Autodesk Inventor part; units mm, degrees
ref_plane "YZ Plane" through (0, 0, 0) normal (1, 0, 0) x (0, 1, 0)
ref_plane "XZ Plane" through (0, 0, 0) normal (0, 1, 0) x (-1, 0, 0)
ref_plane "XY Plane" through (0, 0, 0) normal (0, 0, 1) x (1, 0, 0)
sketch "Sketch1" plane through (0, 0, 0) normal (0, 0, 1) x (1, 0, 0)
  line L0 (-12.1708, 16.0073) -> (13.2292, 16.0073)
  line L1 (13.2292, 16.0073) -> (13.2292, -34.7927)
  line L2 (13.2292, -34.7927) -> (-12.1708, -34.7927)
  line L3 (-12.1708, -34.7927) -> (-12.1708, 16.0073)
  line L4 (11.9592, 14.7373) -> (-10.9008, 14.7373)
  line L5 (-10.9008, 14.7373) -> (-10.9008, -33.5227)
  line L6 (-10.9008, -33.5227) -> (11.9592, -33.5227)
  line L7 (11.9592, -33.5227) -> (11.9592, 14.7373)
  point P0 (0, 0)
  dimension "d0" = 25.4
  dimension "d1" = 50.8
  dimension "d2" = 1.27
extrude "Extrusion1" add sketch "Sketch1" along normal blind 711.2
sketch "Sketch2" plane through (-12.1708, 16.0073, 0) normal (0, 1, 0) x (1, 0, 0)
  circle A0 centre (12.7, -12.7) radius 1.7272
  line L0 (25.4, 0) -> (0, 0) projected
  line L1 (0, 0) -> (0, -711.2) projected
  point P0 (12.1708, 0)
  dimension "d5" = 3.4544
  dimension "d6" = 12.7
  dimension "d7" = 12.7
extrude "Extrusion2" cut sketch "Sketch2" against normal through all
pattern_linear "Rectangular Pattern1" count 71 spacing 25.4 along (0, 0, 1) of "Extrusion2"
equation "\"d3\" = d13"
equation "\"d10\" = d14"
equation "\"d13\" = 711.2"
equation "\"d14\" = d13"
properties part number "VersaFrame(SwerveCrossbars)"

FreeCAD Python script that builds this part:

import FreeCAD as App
import Part
import Sketcher

V = App.Vector
Q = App.Units.Quantity

doc = App.newDocument("Part")
body = doc.addObject("PartDesign::Body", "Body")

# Sketch on XY plane
sketch1 = body.newObject("Sketcher::SketchObject", "Sketch")
sketch1.AttachmentSupport = (doc.getObject("XY_Plane"), [""])
sketch1.MapMode = "FlatFace"
sketch1.addGeometry(Part.LineSegment(V(13, 16, 0), V(-12, 16, 0)), False)
sketch1.addGeometry(Part.LineSegment(V(-12, 16, 0), V(-12, -35, 0)), False)
sketch1.addGeometry(Part.LineSegment(V(-12, -35, 0), V(13, -35, 0)), False)
sketch1.addGeometry(Part.LineSegment(V(13, -35, 0), V(13, 16, 0)), False)
sketch1.addGeometry(Part.LineSegment(V(-11, 15, 0), V(12, 15, 0)), False)
sketch1.addGeometry(Part.LineSegment(V(12, 15, 0), V(12, -34, 0)), False)
sketch1.addGeometry(Part.LineSegment(V(12, -34, 0), V(-11, -34, 0)), False)
sketch1.addGeometry(Part.LineSegment(V(-11, -34, 0), V(-11, 15, 0)), False)
sketch1.addConstraint(Sketcher.Constraint("Coincident", 0, 2, 1, 1))
sketch1.addConstraint(Sketcher.Constraint("Coincident", 1, 2, 2, 1))
sketch1.addConstraint(Sketcher.Constraint("Coincident", 2, 2, 3, 1))
sketch1.addConstraint(Sketcher.Constraint("Coincident", 3, 2, 0, 1))
sketch1.addConstraint(Sketcher.Constraint("Coincident", 4, 2, 5, 1))
sketch1.addConstraint(Sketcher.Constraint("Coincident", 5, 2, 6, 1))
sketch1.addConstraint(Sketcher.Constraint("Coincident", 6, 2, 7, 1))
sketch1.addConstraint(Sketcher.Constraint("Coincident", 7, 2, 4, 1))
sketch1.addConstraint(Sketcher.Constraint("Horizontal", 0))
sketch1.addConstraint(Sketcher.Constraint("Vertical", 1))
sketch1.addConstraint(Sketcher.Constraint("Horizontal", 2))
sketch1.addConstraint(Sketcher.Constraint("Vertical", 3))
sketch1.addConstraint(Sketcher.Constraint("Horizontal", 4))
sketch1.addConstraint(Sketcher.Constraint("Vertical", 5))
sketch1.addConstraint(Sketcher.Constraint("Horizontal", 6))
sketch1.addConstraint(Sketcher.Constraint("Vertical", 7))
sketch1.addConstraint(Sketcher.Constraint("DistanceX", 0, 2, 0, 1, Q("1 in")))
sketch1.addConstraint(Sketcher.Constraint("DistanceY", 1, 2, 1, 1, Q("2 in")))
sketch1.addConstraint(Sketcher.Constraint("DistanceX", 4, 2, 3, 2, Q("0.05 in")))
sketch1.addConstraint(Sketcher.Constraint("DistanceY", 4, 2, 3, 2, Q("0.05 in")))
sketch1.addConstraint(Sketcher.Constraint("DistanceY", 2, 2, 5, 2, Q("0.05 in")))
sketch1.addConstraint(Sketcher.Constraint("DistanceX", 1, 2, 6, 2, Q("0.05 in")))
sketch1.addConstraint(Sketcher.Constraint("DistanceY", -1, 1, 0, 2, Q("0.6302 in")))
sketch1.addConstraint(Sketcher.Constraint("DistanceX", 0, 2, -1, 1, 12.1708))
pad1 = body.newObject("PartDesign::Pad", "Pad")
pad1.Profile = sketch1
pad1.Length = Q("28 in")

# Sketch on XZ plane
sketch2 = body.newObject("Sketcher::SketchObject", "Sketch001")
sketch2.AttachmentSupport = (doc.getObject("XZ_Plane"), [""])
sketch2.MapMode = "FlatFace"
sketch2.AttachmentOffset = App.Placement(V(0, 0, -0.6302087 * 25.4), App.Rotation())
sketch2.addGeometry(Part.Circle(V(0.5, 12.7, 0), V(0, 0, 1), 1.7), False)
sketch2.addConstraint(Sketcher.Constraint("Diameter", 0, Q("0.136 in")))
sketch2.addConstraint(Sketcher.Constraint("DistanceY", -1, 1, 0, 3, Q("0.5 in")))
sketch2.addConstraint(Sketcher.Constraint("DistanceX", -1, 1, 0, 3, 0.5292))
pocket1 = body.newObject("PartDesign::Pocket", "Pocket")
pocket1.Profile = sketch2
pocket1.Type = "ThroughAll"
pocket1.Reversed = True
doc.recompute()

linearpattern = body.newObject("PartDesign::LinearPattern", "LinearPattern")
linearpattern.Originals = [pocket1]
linearpattern.Direction = (doc.getObject("Z_Axis"), [""])
linearpattern.Mode = "offset"
linearpattern.Offset = Q("1 in")
linearpattern.Occurrences = 71
body.Tip = linearpattern

doc.recompute()
